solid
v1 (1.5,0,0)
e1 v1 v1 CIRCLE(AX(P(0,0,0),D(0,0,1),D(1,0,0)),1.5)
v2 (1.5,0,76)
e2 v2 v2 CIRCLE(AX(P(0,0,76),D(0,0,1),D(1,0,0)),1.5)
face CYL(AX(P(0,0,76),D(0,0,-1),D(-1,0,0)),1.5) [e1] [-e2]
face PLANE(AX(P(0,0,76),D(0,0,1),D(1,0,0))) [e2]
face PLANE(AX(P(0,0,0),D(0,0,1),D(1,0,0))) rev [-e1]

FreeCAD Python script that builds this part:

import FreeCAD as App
import Part
import Sketcher

doc = App.newDocument("Part")
body = doc.addObject("PartDesign::Body", "Body")

# Sketch on XY plane
sketch1 = doc.addObject("Sketcher::SketchObject", "Sketch")
body.addObject(sketch1)
sketch1.AttachmentSupport = (doc.XY_Plane, [""])
sketch1.MapMode = "FlatFace"
sketch1.addGeometry(Part.Circle(App.Vector(0, 0, 0), App.Vector(0, 0, 1), 1.5), False)
sketch1.addConstraint([
    Sketcher.Constraint("Coincident", 0, 3, -1, 1),
    Sketcher.Constraint("Diameter", 0, 3.0),
])
pad1 = doc.addObject("PartDesign::Pad", "Pad")
body.addObject(pad1)
pad1.Profile = sketch1
pad1.Length = 76

doc.recompute()
